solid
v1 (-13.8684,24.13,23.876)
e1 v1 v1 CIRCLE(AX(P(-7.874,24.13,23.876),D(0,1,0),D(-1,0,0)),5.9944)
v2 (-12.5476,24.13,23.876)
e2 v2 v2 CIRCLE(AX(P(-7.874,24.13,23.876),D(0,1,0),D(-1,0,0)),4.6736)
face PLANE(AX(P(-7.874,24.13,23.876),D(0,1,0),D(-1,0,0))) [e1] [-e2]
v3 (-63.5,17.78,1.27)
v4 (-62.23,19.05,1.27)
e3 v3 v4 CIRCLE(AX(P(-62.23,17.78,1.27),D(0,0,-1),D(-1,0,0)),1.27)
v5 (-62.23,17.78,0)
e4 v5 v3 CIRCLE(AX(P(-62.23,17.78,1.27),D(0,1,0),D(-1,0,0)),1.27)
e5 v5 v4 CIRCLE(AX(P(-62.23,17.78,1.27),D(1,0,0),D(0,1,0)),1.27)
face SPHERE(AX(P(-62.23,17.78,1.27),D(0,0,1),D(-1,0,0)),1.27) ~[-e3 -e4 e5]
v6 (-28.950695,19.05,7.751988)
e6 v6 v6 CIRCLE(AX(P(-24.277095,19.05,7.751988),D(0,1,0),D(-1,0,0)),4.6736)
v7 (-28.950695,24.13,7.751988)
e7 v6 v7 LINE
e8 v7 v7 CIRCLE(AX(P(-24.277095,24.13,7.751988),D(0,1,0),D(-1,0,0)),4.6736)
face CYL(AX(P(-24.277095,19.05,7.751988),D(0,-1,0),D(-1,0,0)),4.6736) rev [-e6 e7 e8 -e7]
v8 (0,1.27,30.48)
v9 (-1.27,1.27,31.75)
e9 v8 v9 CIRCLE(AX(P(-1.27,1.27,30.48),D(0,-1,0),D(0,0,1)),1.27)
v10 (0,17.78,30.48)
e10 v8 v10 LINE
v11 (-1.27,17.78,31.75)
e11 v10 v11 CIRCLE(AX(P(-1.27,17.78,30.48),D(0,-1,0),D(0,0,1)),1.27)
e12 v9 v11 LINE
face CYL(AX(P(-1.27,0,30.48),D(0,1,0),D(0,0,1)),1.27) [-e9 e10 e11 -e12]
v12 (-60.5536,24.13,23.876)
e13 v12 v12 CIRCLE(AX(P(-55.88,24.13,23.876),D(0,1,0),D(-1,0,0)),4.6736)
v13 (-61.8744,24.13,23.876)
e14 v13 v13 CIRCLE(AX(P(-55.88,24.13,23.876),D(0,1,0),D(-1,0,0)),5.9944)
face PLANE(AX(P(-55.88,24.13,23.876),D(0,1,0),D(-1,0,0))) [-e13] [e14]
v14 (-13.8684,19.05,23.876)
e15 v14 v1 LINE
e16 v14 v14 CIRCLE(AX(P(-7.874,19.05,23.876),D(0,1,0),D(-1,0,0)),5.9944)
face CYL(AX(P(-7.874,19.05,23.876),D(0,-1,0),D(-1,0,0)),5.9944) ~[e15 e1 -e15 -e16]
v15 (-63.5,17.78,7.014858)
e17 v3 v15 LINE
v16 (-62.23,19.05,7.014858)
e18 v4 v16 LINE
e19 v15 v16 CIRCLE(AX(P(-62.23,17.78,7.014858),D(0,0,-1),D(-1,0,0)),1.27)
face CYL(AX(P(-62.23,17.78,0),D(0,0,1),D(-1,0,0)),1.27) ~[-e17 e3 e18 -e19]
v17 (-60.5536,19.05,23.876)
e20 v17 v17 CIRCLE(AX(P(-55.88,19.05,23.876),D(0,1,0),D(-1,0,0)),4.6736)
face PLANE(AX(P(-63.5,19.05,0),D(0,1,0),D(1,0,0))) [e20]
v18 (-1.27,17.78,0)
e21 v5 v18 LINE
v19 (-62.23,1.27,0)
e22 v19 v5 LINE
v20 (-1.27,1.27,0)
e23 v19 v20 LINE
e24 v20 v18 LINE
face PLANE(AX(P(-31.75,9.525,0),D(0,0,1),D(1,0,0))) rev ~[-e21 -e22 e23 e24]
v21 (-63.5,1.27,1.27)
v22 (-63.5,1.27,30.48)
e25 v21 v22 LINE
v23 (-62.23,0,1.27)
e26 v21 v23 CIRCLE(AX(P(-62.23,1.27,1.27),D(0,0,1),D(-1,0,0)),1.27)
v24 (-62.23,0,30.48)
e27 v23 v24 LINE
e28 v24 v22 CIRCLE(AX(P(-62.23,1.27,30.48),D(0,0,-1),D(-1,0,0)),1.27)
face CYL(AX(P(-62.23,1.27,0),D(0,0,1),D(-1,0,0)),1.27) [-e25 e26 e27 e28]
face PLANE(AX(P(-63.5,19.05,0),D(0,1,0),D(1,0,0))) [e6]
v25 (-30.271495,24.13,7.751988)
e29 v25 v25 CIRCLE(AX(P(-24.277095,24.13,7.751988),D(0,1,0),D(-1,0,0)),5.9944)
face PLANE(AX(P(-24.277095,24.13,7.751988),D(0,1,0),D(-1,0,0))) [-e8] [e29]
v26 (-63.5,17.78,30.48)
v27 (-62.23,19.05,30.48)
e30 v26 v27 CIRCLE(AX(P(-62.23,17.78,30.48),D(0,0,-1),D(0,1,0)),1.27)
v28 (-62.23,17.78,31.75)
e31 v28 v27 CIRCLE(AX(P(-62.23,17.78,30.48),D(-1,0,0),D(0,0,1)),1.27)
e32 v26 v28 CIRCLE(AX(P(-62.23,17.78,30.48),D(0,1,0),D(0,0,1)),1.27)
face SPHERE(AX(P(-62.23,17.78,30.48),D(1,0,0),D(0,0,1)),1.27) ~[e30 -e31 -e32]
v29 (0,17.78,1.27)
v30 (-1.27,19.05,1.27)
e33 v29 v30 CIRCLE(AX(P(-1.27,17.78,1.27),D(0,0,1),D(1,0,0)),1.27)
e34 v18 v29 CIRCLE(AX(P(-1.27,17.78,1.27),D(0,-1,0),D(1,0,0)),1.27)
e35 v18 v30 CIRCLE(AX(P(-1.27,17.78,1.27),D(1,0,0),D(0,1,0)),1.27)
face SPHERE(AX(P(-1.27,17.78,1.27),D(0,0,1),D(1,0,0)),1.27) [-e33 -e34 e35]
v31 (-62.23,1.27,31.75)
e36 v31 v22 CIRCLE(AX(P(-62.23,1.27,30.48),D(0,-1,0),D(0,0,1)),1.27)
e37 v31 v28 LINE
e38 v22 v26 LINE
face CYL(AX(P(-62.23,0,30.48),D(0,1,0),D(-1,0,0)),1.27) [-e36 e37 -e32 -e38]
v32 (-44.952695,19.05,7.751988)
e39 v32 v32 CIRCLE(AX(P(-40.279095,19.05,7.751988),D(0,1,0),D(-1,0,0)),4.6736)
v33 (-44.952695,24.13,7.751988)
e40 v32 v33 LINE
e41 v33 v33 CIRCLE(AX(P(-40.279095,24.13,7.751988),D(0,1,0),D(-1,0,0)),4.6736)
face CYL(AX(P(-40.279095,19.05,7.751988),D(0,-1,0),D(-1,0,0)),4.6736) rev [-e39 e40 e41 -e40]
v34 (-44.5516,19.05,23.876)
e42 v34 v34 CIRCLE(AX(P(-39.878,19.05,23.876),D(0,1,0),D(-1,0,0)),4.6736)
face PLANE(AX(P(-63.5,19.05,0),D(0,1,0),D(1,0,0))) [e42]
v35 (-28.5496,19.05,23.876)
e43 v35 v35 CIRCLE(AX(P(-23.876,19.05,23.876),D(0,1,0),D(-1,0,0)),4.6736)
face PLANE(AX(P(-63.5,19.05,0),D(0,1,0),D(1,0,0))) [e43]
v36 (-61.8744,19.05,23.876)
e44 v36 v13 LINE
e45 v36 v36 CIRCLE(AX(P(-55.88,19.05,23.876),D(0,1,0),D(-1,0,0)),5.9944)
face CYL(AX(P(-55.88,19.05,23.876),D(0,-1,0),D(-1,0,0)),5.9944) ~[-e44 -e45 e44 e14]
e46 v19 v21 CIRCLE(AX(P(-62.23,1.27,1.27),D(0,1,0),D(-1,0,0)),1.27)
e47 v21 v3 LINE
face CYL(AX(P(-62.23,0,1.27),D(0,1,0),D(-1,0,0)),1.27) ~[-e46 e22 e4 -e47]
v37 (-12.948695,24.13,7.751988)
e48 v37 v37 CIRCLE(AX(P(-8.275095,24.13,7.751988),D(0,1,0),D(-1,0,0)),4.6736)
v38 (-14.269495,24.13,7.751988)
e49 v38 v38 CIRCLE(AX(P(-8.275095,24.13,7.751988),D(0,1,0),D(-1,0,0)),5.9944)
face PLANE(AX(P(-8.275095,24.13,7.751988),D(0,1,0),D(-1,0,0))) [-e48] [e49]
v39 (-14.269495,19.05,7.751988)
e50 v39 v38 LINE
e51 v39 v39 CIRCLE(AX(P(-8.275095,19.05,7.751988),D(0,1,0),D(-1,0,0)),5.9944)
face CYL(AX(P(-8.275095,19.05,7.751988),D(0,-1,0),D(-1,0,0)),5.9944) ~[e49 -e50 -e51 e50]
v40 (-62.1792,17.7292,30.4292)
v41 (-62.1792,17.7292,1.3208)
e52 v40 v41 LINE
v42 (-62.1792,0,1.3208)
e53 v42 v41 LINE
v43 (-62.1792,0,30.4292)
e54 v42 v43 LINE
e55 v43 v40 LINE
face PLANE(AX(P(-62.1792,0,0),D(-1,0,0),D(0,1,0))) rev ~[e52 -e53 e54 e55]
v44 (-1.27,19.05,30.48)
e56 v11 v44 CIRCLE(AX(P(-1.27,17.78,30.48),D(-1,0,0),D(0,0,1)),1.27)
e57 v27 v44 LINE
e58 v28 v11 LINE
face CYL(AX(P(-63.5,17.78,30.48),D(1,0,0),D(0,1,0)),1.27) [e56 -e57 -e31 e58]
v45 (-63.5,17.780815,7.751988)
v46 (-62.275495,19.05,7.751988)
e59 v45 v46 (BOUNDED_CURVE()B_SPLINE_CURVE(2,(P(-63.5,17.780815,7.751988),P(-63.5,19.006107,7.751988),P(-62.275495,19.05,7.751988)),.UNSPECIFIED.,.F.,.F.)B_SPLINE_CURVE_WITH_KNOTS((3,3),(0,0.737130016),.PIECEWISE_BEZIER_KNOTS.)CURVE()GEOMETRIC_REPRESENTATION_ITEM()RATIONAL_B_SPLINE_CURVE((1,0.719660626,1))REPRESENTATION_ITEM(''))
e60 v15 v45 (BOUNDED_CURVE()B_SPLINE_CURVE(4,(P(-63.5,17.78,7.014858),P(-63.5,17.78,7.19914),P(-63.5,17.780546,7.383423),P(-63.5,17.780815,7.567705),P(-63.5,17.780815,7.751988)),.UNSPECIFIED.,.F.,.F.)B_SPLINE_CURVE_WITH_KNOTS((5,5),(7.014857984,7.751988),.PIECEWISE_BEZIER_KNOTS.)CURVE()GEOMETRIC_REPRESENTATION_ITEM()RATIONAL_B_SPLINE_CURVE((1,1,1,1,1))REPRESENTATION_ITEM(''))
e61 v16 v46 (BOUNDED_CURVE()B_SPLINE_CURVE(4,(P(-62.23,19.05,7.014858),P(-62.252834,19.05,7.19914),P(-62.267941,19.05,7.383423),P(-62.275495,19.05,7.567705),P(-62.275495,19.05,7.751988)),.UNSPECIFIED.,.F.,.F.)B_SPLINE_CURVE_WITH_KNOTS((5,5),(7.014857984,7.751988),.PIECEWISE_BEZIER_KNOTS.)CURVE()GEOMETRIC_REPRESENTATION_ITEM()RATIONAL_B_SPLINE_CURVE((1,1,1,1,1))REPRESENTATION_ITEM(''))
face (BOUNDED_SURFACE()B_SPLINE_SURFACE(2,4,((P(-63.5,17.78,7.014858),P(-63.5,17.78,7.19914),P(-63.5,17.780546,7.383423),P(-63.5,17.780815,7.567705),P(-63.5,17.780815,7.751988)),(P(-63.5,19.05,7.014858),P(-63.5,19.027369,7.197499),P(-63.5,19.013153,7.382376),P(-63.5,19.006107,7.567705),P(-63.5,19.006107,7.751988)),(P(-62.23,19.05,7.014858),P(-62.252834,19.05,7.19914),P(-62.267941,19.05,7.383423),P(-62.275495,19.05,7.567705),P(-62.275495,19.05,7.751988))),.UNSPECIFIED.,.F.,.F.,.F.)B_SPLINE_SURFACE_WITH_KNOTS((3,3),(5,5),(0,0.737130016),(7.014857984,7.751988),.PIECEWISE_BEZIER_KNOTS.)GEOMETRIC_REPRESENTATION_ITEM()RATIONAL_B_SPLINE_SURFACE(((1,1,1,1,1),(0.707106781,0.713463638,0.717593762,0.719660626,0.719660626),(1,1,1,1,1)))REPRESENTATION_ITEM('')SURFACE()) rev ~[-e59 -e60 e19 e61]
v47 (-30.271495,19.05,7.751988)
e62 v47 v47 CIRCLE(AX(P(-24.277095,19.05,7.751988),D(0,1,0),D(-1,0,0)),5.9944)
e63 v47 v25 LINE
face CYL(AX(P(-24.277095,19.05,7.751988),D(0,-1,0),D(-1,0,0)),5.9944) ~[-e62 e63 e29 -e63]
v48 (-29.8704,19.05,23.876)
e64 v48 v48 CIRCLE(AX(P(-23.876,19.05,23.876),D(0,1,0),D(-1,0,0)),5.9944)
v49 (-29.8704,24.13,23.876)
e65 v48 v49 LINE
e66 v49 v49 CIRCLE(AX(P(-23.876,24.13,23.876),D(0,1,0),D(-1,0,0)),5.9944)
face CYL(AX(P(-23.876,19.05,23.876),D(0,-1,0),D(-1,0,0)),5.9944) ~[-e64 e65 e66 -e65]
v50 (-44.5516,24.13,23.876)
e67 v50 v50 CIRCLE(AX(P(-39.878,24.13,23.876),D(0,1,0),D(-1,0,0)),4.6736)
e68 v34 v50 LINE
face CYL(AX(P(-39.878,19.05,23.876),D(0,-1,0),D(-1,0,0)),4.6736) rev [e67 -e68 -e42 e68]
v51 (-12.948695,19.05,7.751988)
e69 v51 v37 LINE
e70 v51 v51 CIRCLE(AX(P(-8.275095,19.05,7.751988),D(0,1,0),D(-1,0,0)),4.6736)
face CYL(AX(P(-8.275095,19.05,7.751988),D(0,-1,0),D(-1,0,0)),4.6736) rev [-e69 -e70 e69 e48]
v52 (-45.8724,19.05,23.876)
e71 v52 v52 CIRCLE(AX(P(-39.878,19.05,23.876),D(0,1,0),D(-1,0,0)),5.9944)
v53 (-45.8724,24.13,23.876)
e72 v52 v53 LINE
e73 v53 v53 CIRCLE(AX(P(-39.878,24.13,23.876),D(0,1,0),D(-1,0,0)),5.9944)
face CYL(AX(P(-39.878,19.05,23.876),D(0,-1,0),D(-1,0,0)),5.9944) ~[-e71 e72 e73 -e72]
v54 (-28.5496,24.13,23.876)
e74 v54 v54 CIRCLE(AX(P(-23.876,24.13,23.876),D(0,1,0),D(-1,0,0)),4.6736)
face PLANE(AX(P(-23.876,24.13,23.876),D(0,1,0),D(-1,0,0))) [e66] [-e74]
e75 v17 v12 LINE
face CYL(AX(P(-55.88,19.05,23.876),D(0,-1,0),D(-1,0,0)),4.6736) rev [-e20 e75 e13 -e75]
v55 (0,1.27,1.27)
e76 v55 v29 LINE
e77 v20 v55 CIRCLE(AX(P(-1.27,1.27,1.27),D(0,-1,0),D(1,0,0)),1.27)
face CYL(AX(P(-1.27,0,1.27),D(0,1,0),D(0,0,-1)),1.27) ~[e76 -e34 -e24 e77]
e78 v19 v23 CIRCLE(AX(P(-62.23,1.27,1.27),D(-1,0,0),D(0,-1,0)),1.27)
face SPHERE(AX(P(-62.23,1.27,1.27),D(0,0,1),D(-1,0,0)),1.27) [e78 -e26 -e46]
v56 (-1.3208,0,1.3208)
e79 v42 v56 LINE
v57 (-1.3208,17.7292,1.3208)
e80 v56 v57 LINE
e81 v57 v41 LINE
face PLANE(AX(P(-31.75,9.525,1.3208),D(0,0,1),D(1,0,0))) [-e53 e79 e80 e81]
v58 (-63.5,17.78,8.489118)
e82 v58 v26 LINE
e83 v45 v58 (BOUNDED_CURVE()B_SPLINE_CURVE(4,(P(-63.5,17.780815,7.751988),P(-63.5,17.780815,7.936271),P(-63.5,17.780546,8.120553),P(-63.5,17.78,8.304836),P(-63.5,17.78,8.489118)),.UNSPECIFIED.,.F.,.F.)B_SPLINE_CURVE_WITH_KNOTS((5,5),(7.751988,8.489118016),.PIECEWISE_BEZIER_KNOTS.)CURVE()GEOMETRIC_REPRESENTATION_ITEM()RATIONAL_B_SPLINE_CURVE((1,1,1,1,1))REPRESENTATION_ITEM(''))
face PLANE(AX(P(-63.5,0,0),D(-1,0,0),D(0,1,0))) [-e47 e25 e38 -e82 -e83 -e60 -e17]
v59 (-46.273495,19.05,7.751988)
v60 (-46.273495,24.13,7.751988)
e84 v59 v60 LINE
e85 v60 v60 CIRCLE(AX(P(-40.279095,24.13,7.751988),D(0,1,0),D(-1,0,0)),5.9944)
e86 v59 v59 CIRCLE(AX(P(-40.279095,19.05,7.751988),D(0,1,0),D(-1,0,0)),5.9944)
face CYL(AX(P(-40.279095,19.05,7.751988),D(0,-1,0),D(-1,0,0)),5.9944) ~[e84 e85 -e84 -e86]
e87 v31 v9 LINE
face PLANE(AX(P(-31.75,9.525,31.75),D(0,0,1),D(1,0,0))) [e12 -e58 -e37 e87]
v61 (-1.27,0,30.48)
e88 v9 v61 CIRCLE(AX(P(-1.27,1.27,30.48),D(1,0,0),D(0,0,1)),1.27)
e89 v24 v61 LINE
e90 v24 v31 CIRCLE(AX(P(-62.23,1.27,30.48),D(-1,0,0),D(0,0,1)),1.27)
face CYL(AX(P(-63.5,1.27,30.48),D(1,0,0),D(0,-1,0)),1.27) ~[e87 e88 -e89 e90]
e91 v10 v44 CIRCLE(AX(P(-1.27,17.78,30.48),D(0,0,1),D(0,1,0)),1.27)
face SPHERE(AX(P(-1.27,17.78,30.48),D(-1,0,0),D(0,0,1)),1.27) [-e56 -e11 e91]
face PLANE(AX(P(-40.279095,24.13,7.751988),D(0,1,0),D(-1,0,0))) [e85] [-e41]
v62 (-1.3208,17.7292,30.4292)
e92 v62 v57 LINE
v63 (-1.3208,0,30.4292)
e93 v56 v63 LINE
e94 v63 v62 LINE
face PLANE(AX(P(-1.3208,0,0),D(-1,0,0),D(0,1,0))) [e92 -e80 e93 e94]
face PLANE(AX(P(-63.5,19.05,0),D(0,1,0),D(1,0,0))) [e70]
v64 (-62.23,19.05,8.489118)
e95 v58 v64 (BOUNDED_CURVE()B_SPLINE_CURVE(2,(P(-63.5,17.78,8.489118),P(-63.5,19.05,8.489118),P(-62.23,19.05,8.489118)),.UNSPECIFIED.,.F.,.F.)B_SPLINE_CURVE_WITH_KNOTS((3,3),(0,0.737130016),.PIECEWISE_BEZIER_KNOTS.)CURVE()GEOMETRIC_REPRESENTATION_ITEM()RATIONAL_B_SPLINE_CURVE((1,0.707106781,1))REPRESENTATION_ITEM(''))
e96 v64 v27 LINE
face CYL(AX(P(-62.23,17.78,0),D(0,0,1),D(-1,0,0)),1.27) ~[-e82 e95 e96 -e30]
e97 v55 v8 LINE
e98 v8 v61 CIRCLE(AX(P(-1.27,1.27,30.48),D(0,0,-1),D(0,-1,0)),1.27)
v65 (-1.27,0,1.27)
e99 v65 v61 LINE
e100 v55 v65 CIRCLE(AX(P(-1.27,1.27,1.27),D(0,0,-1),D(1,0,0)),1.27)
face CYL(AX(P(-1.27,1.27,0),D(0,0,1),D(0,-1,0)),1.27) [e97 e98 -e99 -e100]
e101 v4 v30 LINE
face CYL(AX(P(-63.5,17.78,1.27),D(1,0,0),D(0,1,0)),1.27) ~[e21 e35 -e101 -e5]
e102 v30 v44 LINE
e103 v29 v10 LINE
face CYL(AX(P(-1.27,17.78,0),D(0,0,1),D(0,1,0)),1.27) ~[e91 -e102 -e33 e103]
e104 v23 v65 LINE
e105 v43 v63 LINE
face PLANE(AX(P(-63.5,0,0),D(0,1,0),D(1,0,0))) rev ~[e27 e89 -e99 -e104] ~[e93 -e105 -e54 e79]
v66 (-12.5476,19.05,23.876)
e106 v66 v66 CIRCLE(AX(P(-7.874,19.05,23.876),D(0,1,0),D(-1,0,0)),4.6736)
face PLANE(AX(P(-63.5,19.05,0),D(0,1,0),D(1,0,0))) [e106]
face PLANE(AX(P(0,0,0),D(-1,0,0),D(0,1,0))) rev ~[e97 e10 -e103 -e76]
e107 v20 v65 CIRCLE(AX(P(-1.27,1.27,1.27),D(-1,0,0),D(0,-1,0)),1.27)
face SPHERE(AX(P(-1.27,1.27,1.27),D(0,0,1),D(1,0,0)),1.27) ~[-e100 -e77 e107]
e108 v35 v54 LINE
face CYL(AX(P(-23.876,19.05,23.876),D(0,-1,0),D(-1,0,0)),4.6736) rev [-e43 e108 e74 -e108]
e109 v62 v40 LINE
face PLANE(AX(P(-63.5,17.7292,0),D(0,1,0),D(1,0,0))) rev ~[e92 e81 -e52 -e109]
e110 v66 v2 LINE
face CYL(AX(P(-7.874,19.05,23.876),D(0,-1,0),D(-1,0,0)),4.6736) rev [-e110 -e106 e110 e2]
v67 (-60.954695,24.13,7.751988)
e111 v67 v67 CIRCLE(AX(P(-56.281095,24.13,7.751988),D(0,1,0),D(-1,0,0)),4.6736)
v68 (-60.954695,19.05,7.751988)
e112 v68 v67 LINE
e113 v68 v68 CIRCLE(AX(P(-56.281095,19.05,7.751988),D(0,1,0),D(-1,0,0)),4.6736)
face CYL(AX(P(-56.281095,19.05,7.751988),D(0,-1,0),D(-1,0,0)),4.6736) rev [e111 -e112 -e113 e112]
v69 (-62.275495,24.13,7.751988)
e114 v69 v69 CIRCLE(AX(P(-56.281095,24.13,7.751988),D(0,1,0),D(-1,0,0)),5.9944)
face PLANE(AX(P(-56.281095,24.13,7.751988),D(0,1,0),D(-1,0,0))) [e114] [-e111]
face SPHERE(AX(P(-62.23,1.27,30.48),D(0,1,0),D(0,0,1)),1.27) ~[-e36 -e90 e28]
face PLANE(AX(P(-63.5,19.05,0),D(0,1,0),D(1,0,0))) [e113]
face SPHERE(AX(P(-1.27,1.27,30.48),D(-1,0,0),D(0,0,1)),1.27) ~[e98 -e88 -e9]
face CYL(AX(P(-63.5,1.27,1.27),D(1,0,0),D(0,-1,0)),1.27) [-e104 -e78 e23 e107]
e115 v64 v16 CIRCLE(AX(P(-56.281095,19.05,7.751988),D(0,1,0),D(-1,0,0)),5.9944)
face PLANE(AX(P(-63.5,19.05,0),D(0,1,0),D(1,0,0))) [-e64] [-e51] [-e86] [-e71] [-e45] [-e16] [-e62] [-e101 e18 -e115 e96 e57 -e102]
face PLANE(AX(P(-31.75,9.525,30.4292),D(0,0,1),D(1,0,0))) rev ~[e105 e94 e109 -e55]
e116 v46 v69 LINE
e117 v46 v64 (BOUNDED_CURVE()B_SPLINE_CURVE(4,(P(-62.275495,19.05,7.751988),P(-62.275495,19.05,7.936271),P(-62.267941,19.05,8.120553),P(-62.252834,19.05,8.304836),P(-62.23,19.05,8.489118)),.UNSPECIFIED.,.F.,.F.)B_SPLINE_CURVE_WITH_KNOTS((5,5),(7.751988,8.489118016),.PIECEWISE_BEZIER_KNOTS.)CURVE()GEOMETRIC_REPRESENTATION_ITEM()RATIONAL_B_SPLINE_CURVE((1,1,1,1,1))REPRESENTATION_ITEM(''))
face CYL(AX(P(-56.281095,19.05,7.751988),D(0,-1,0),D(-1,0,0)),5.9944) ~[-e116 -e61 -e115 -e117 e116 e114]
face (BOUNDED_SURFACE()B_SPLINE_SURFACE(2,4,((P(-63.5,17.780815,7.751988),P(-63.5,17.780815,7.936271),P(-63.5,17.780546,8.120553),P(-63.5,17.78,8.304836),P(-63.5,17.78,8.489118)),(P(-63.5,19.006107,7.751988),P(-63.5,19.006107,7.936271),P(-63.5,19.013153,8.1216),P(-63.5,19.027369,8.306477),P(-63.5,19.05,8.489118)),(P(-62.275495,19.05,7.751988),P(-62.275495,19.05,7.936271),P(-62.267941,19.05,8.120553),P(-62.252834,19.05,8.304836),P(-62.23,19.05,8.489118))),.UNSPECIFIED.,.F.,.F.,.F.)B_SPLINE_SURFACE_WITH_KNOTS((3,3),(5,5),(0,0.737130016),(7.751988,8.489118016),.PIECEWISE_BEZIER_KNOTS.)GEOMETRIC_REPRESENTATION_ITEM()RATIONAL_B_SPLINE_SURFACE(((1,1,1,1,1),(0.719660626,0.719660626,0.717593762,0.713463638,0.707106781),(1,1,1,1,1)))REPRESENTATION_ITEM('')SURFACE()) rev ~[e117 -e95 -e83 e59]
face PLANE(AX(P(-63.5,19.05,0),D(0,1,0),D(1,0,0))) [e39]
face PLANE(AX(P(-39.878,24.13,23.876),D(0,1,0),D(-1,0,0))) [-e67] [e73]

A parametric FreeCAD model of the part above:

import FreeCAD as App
import Part
import Sketcher

V = App.Vector
Q = App.Units.Quantity


def edges_at(feature, points):
    """Names of the edges that pass closest to the given points."""
    edges = feature.Shape.Edges
    near = lambda p: min(range(len(edges)), key=lambda i: edges[i].distToShape(Part.Vertex(*p))[0])
    return sorted({f"Edge{near(p) + 1}" for p in points})


def faces_at(feature, points):
    """Names of the faces that lie closest to the given points."""
    faces = feature.Shape.Faces
    near = lambda p: min(range(len(faces)), key=lambda i: faces[i].distToShape(Part.Vertex(*p))[0])
    return sorted({f"Face{near(p) + 1}" for p in points})

doc = App.newDocument("Part")
body = doc.addObject("PartDesign::Body", "Body")

sketch1 = body.newObject("Sketcher::SketchObject", "Sketch")
sketch1.AttachmentSupport = (doc.getObject("XY_Plane"), [""])
sketch1.MapMode = "FlatFace"
sketch1.addGeometry([
    Part.LineSegment(V(-64, 19, 0), V(-64, 0, 0)),
    Part.LineSegment(V(-64, 0, 0), V(0, 0, 0)),
    Part.LineSegment(V(0, 0, 0), V(0, 19, 0)),
    Part.LineSegment(V(0, 19, 0), V(-64, 19, 0)),
], False)
sketch1.addConstraint([
    Sketcher.Constraint("Coincident", 0, 2, 1, 1),
    Sketcher.Constraint("Coincident", 1, 2, 2, 1),
    Sketcher.Constraint("Coincident", 2, 2, 3, 1),
    Sketcher.Constraint("Coincident", 3, 2, 0, 1),
    Sketcher.Constraint("Vertical", 0),
    Sketcher.Constraint("Horizontal", 1),
    Sketcher.Constraint("Vertical", 2),
    Sketcher.Constraint("Horizontal", 3),
    Sketcher.Constraint("Coincident", 1, 2, -1, 1),
    Sketcher.Constraint("DistanceX", 1, 1, 1, 2, Q("2.5 in")),
    Sketcher.Constraint("DistanceY", 0, 2, 0, 1, Q("0.75 in")),
])
pad1 = body.newObject("PartDesign::Pad", "Pad")
pad1.Profile = sketch1
pad1.Length = Q("1.25 in")
doc.recompute()

thickness = body.newObject("PartDesign::Thickness", "Thickness")
thickness.Base = (pad1, faces_at(pad1, [(-31.75, 0, 15.875)]))
thickness.Value = Q("0.052 in")
thickness.Reversed = True
thickness.Join = "Arc"

sketch2 = body.newObject("Sketcher::SketchObject", "Sketch001")
sketch2.AttachmentSupport = (doc.getObject("XZ_Plane"), [""])
sketch2.MapMode = "FlatFace"
sketch2.AttachmentOffset = App.Placement(V(0, 0, -0.75 * 25.4), App.Rotation())
sketch2.addGeometry([
    Part.Circle(V(-7.9, 23.9, 0), V(0, 0, 1), 6),
    Part.Circle(V(-7.9, 23.9, 0), V(0, 0, 1), 4.7),
    Part.Circle(V(-23.9, 23.9, 0), V(0, 0, 1), 6),
    Part.Circle(V(-23.9, 23.9, 0), V(0, 0, 1), 4.7),
    Part.Circle(V(-39.9, 23.9, 0), V(0, 0, 1), 6),
    Part.Circle(V(-39.9, 23.9, 0), V(0, 0, 1), 4.7),
    Part.Circle(V(-55.9, 23.9, 0), V(0, 0, 1), 6),
    Part.Circle(V(-55.9, 23.9, 0), V(0, 0, 1), 4.7),
    Part.Circle(V(-8.3, 7.8, 0), V(0, 0, 1), 6),
    Part.Circle(V(-8.3, 7.8, 0), V(0, 0, 1), 4.7),
    Part.Circle(V(-56.3, 7.8, 0), V(0, 0, 1), 6),
    Part.Circle(V(-56.3, 7.8, 0), V(0, 0, 1), 4.7),
    Part.Circle(V(-40.3, 7.8, 0), V(0, 0, 1), 6),
    Part.Circle(V(-40.3, 7.8, 0), V(0, 0, 1), 4.7),
    Part.Circle(V(-24.3, 7.8, 0), V(0, 0, 1), 6),
    Part.Circle(V(-24.3, 7.8, 0), V(0, 0, 1), 4.7),
], False)
sketch2.addConstraint([
    Sketcher.Constraint("Coincident", 1, 3, 0, 3),
    Sketcher.Constraint("Coincident", 3, 3, 2, 3),
    Sketcher.Constraint("Coincident", 5, 3, 4, 3),
    Sketcher.Constraint("Coincident", 7, 3, 6, 3),
    Sketcher.Constraint("Coincident", 9, 3, 8, 3),
    Sketcher.Constraint("Coincident", 11, 3, 10, 3),
    Sketcher.Constraint("Coincident", 13, 3, 12, 3),
    Sketcher.Constraint("Coincident", 15, 3, 14, 3),
    Sketcher.Constraint("Equal", 0, 2),
    Sketcher.Constraint("Equal", 1, 3),
    Sketcher.Constraint("Equal", 2, 4),
    Sketcher.Constraint("Equal", 3, 5),
    Sketcher.Constraint("Equal", 4, 6),
    Sketcher.Constraint("Equal", 5, 7),
    Sketcher.Constraint("Equal", 6, 8),
    Sketcher.Constraint("Equal", 7, 9),
    Sketcher.Constraint("Equal", 8, 10),
    Sketcher.Constraint("Equal", 9, 11),
    Sketcher.Constraint("Equal", 10, 12),
    Sketcher.Constraint("Equal", 11, 13),
    Sketcher.Constraint("Equal", 12, 14),
    Sketcher.Constraint("Equal", 13, 15),
    Sketcher.Constraint("Horizontal", 1, 3, 2, 3),
    Sketcher.Constraint("Horizontal", 3, 3, 4, 3),
    Sketcher.Constraint("Horizontal", 5, 3, 6, 3),
    Sketcher.Constraint("Horizontal", 9, 3, 10, 3),
    Sketcher.Constraint("Horizontal", 11, 3, 12, 3),
    Sketcher.Constraint("Horizontal", 13, 3, 14, 3),
    Sketcher.Constraint("Diameter", 0, Q("0.472 in")),
    Sketcher.Constraint("Diameter", 1, Q("0.368 in")),
    Sketcher.Constraint("DistanceX", 6, 3, -1, 1, Q("2.2 in")),
    Sketcher.Constraint("DistanceX", 0, 3, -1, 1, Q("0.31 in")),
    Sketcher.Constraint("DistanceY", -1, 1, 0, 3, Q("0.94 in")),
    Sketcher.Constraint("DistanceX", 2, 3, -1, 1, Q("0.94 in")),
    Sketcher.Constraint("DistanceX", 4, 3, -1, 1, Q("1.57 in")),
    Sketcher.Constraint("DistanceX", 10, 3, 12, 3, Q("0.63 in")),
    Sketcher.Constraint("DistanceX", 14, 3, 8, 3, Q("0.63 in")),
    Sketcher.Constraint("DistanceX", 12, 3, 14, 3, Q("0.63 in")),
    Sketcher.Constraint("DistanceX", 8, 3, -1, 1, Q("8.275095 mm")),
    Sketcher.Constraint("DistanceY", -1, 1, 8, 3, Q("7.751988 mm")),
])
pad2 = body.newObject("PartDesign::Pad", "Pad001")
pad2.Profile = sketch2
pad2.Length = Q("0.2 in")
pad2.Reversed = True
doc.recompute()

fillet = body.newObject("PartDesign::Fillet", "Fillet")
fillet.Base = (pad2, edges_at(pad2, [
    (-31.75, 19.05, 31.75),
    (-63.5, 9.525, 31.75),
    (-31.75, 0, 31.75),
    (0, 9.525, 31.75),
    (-63.5, 19.05, 15.875),
    (-63.5, 0, 15.875),
    (-63.5, 9.525, 0),
    (0, 0, 15.875),
    (0, 19.05, 15.875),
    (0, 9.525, 0),
    (-31.75, 19.05, 0),
    (-31.75, 0, 0),
]))
fillet.Radius = Q("0.05 in")

doc.recompute()
